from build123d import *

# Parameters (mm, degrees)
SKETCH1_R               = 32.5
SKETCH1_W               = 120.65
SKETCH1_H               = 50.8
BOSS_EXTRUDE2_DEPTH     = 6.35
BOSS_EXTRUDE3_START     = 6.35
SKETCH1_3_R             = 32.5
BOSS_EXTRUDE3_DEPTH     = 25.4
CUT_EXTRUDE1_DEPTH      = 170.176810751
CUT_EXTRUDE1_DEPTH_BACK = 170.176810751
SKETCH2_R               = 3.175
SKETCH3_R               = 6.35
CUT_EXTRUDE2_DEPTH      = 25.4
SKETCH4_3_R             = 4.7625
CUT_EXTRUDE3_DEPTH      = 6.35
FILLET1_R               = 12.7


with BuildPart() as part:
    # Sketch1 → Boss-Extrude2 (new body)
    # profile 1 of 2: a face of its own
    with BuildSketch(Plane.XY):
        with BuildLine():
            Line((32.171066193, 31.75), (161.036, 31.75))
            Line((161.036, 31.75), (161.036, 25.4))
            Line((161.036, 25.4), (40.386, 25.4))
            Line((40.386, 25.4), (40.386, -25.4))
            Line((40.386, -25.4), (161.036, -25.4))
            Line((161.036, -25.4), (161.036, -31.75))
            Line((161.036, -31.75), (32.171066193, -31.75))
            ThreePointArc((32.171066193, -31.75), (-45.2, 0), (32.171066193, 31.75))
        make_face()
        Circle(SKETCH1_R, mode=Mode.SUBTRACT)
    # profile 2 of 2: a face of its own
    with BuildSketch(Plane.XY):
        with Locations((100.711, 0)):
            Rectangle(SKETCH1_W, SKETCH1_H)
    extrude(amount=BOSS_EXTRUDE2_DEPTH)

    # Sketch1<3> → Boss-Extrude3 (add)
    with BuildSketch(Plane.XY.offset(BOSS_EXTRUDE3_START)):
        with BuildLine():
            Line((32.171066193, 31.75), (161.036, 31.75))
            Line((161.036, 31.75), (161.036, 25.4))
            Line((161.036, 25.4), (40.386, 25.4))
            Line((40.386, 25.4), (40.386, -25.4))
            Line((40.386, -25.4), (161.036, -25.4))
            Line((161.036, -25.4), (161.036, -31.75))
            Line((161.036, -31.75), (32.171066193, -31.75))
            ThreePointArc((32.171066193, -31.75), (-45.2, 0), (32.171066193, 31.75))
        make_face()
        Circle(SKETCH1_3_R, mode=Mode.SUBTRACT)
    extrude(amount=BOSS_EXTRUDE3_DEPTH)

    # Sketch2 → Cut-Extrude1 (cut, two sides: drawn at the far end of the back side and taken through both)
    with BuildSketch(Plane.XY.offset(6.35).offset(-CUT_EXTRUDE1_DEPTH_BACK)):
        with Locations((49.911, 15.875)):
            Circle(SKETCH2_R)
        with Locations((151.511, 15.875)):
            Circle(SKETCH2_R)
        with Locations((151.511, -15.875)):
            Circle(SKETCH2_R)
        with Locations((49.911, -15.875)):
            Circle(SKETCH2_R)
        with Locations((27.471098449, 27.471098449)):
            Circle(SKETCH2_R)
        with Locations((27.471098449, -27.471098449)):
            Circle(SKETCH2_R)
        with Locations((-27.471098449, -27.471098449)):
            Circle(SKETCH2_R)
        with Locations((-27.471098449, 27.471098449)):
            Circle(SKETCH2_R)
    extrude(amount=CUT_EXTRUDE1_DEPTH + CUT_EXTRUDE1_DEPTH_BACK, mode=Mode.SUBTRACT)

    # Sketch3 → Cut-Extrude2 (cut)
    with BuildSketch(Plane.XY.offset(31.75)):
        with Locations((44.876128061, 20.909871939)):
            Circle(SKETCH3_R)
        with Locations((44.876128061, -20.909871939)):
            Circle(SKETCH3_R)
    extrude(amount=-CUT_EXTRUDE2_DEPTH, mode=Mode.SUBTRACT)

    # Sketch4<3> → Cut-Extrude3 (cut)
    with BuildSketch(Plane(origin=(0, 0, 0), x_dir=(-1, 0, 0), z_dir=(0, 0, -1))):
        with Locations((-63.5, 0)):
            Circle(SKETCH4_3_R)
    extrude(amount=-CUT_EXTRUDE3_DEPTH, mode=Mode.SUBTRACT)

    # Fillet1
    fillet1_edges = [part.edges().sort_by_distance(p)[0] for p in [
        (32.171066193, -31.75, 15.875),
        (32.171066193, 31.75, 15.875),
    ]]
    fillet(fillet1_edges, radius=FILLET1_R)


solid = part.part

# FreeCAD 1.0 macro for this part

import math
import FreeCAD as App
import Part
import Sketcher

V = App.Vector
Q = App.Units.Quantity


def edges_at(feature, points):
    """Names of the edges that pass closest to the given points."""
    edges = feature.Shape.Edges
    near = lambda p: min(range(len(edges)), key=lambda i: edges[i].distToShape(Part.Vertex(*p))[0])
    return sorted({f"Edge{near(p) + 1}" for p in points})

doc = App.newDocument("Part")
params = doc.addObject("Spreadsheet::Sheet", "Params")
for row, (alias, value) in enumerate([
    ("sketch1_height", "2.5 in"),
    ("pad1_length", "0.25 in"),
    ("sketch2_height", "2 in"),
    ("sketch2_width", "4.75 in"),
    ("sketch2_height2", "0.25 in"),
    ("pad2_length", "1 in"),
    ("sketch3_diameter", "0.25 in"),
    ("sketch4_diameter", "0.5 in"),
    ("pocket2_length", "1 in"),
    ("sketch5_diameter", "0.375 in"),
    ("pocket3_length", "0.25 in"),
    ("fillet_radius", "0.5 in"),
], start=1):
    params.set(f"A{row}", alias)
    params.set(f"B{row}", "=" + value)
    params.setAlias(f"B{row}", alias)

body = doc.addObject("PartDesign::Body", "Body")

sketch1 = body.newObject("Sketcher::SketchObject", "Sketch")
sketch1.AttachmentSupport = (doc.getObject("XY_Plane"), [""])
sketch1.MapMode = "FlatFace"
sketch1.addGeometry([
    Part.LineSegment(V(161, 32, 0), V(32, 32, 0)),
    Part.ArcOfCircle(Part.Circle(V(0, 0, 0), V(0, 0, 1), 45), math.radians(45), math.radians(315)),
    Part.LineSegment(V(32, -32, 0), V(161, -32, 0)),
    Part.LineSegment(V(161, -32, 0), V(161, 32, 0)),
    Part.Circle(V(0, 0, 0), V(0, 0, 1), 32),
], False)
sketch1.addConstraint([
    Sketcher.Constraint("Coincident", 0, 2, 1, 1),
    Sketcher.Constraint("Coincident", 1, 2, 2, 1),
    Sketcher.Constraint("Coincident", 2, 2, 3, 1),
    Sketcher.Constraint("Coincident", 3, 2, 0, 1),
    Sketcher.Constraint("Horizontal", 0),
    Sketcher.Constraint("Horizontal", 2),
    Sketcher.Constraint("Vertical", 3),
    Sketcher.Constraint("Coincident", 1, 3, -1, 1),
    Sketcher.Constraint("Coincident", 4, 3, -1, 1),
    Sketcher.Constraint("Vertical", 0, 2, 1, 2),
    Sketcher.Constraint("DistanceY", 3, 1, 3, 2, Q("2.5 in")),
    Sketcher.Constraint("Diameter", 4, 65.0),
    Sketcher.Constraint("DistanceX", -1, 1, 2, 2, Q("6.34 in")),
    Sketcher.Constraint("Radius", 1, 45.2),
])
sketch1.setExpression("Constraints[10]", "Params.sketch1_height")
pad1 = body.newObject("PartDesign::Pad", "Pad")
pad1.Profile = sketch1
pad1.setExpression("Length", "Params.pad1_length")

sketch2 = body.newObject("Sketcher::SketchObject", "Sketch001")
sketch2.AttachmentSupport = (doc.getObject("XY_Plane"), [""])
sketch2.MapMode = "FlatFace"
sketch2.AttachmentOffset = App.Placement(V(0, 0, 0.25 * 25.4), App.Rotation())
sketch2.addGeometry([
    Part.LineSegment(V(161, 32, 0), V(32, 32, 0)),
    Part.ArcOfCircle(Part.Circle(V(0, 0, 0), V(0, 0, 1), 45), math.radians(45), math.radians(315)),
    Part.LineSegment(V(32, -32, 0), V(161, -32, 0)),
    Part.LineSegment(V(161, -32, 0), V(161, -25, 0)),
    Part.LineSegment(V(161, -25, 0), V(40, -25, 0)),
    Part.LineSegment(V(40, -25, 0), V(40, 25, 0)),
    Part.LineSegment(V(40, 25, 0), V(161, 25, 0)),
    Part.LineSegment(V(161, 25, 0), V(161, 32, 0)),
    Part.Circle(V(0, 0, 0), V(0, 0, 1), 32),
], False)
sketch2.addConstraint([
    Sketcher.Constraint("Coincident", 0, 2, 1, 1),
    Sketcher.Constraint("Coincident", 1, 2, 2, 1),
    Sketcher.Constraint("Coincident", 2, 2, 3, 1),
    Sketcher.Constraint("Coincident", 3, 2, 4, 1),
    Sketcher.Constraint("Coincident", 4, 2, 5, 1),
    Sketcher.Constraint("Coincident", 5, 2, 6, 1),
    Sketcher.Constraint("Coincident", 6, 2, 7, 1),
    Sketcher.Constraint("Coincident", 7, 2, 0, 1),
    Sketcher.Constraint("Horizontal", 0),
    Sketcher.Constraint("Horizontal", 2),
    Sketcher.Constraint("Vertical", 3),
    Sketcher.Constraint("Horizontal", 4),
    Sketcher.Constraint("Vertical", 5),
    Sketcher.Constraint("Horizontal", 6),
    Sketcher.Constraint("Vertical", 7),
    Sketcher.Constraint("Coincident", 1, 3, -1, 1),
    Sketcher.Constraint("Coincident", 8, 3, -1, 1),
    Sketcher.Constraint("Symmetric", 3, 2, 6, 2, -1),
    Sketcher.Constraint("Vertical", 0, 2, 1, 2),
    Sketcher.Constraint("DistanceY", 5, 1, 5, 2, Q("2 in")),
    Sketcher.Constraint("DistanceX", 4, 2, 4, 1, Q("4.75 in")),
    Sketcher.Constraint("DistanceY", 3, 1, 3, 2, Q("0.25 in")),
    Sketcher.Constraint("Diameter", 8, 65.0),
    Sketcher.Constraint("DistanceX", -1, 1, 2, 2, Q("6.34 in")),
    Sketcher.Constraint("Radius", 1, 45.2),
])
sketch2.setExpression("Constraints[19]", "Params.sketch2_height")
sketch2.setExpression("Constraints[20]", "Params.sketch2_width")
sketch2.setExpression("Constraints[21]", "Params.sketch2_height2")
pad2 = body.newObject("PartDesign::Pad", "Pad001")
pad2.Profile = sketch2
pad2.setExpression("Length", "Params.pad2_length")

sketch3 = body.newObject("Sketcher::SketchObject", "Sketch002")
sketch3.AttachmentSupport = (doc.getObject("XY_Plane"), [""])
sketch3.MapMode = "FlatFace"
sketch3.AttachmentOffset = App.Placement(V(0, 0, 0.25 * 25.4), App.Rotation())
sketch3.addGeometry([
    Part.Circle(V(49.9, 15.9, 0), V(0, 0, 1), 3.2),
    Part.Circle(V(151.5, 15.9, 0), V(0, 0, 1), 3.2),
    Part.Circle(V(151.5, -15.9, 0), V(0, 0, 1), 3.2),
    Part.Circle(V(49.9, -15.9, 0), V(0, 0, 1), 3.2),
    Part.Circle(V(27.5, 27.5, 0), V(0, 0, 1), 3.2),
    Part.Circle(V(27.5, -27.5, 0), V(0, 0, 1), 3.2),
    Part.Circle(V(-27.5, -27.5, 0), V(0, 0, 1), 3.2),
    Part.Circle(V(-27.5, 27.5, 0), V(0, 0, 1), 3.2),
], False)
sketch3.addConstraint([
    Sketcher.Constraint("Equal", 0, 1),
    Sketcher.Constraint("Equal", 1, 2),
    Sketcher.Constraint("Equal", 2, 3),
    Sketcher.Constraint("Equal", 3, 4),
    Sketcher.Constraint("Equal", 4, 5),
    Sketcher.Constraint("Equal", 5, 6),
    Sketcher.Constraint("Equal", 6, 7),
    Sketcher.Constraint("Symmetric", 4, 3, 6, 3, -1, 1),
    Sketcher.Constraint("Symmetric", 5, 3, 7, 3, -1, 1),
    Sketcher.Constraint("Symmetric", 5, 3, 6, 3, -2),
    Sketcher.Constraint("Symmetric", 1, 3, 2, 3, -1),
    Sketcher.Constraint("Symmetric", 0, 3, 3, 3, -1),
    Sketcher.Constraint("Horizontal", 0, 3, 1, 3),
    Sketcher.Constraint("Diameter", 0, Q("0.25 in")),
    Sketcher.Constraint("DistanceX", 0, 3, 1, 3, Q("4 in")),
    Sketcher.Constraint("DistanceY", 2, 3, 1, 3, Q("1.25 in")),
    Sketcher.Constraint("DistanceX", -1, 1, 0, 3, Q("1.965 in")),
    Sketcher.Constraint("DistanceX", -1, 1, 4, 3, 27.471098),
    Sketcher.Constraint("DistanceY", -1, 1, 4, 3, 27.471098),
])
sketch3.setExpression("Constraints[13]", "Params.sketch3_diameter")
pocket1 = body.newObject("PartDesign::Pocket", "Pocket")
pocket1.Profile = sketch3
pocket1.Type = "ThroughAll"
pocket1.Midplane = True

sketch4 = body.newObject("Sketcher::SketchObject", "Sketch003")
sketch4.AttachmentSupport = (doc.getObject("XY_Plane"), [""])
sketch4.MapMode = "FlatFace"
sketch4.AttachmentOffset = App.Placement(V(0, 0, 1.25 * 25.4), App.Rotation())
sketch4.addGeometry([
    Part.Circle(V(45, 21, 0), V(0, 0, 1), 6),
    Part.Circle(V(45, -21, 0), V(0, 0, 1), 6),
], False)
sketch4.addConstraint([
    Sketcher.Constraint("Equal", 0, 1),
    Sketcher.Constraint("Symmetric", 0, 3, 1, 3, -1),
    Sketcher.Constraint("Diameter", 0, Q("0.5 in")),
    Sketcher.Constraint("DistanceX", -1, 1, 0, 3, 44.876128),
    Sketcher.Constraint("DistanceY", -1, 1, 0, 3, 20.909872),
])
sketch4.setExpression("Constraints[2]", "Params.sketch4_diameter")
pocket2 = body.newObject("PartDesign::Pocket", "Pocket001")
pocket2.Profile = sketch4
pocket2.setExpression("Length", "Params.pocket2_length")

sketch5 = body.newObject("Sketcher::SketchObject", "Sketch004")
sketch5.AttachmentSupport = (doc.getObject("XY_Plane"), [""])
sketch5.MapMode = "FlatFace"
sketch5.addGeometry(Part.Circle(V(63.5, 0, 0), V(0, 0, 1), 4.8), False)
sketch5.addConstraint([
    Sketcher.Constraint("PointOnObject", 0, 3, -1),
    Sketcher.Constraint("Diameter", 0, Q("0.375 in")),
    Sketcher.Constraint("DistanceX", -1, 1, 0, 3, Q("2.5 in")),
])
sketch5.setExpression("Constraints[1]", "Params.sketch5_diameter")
pocket3 = body.newObject("PartDesign::Pocket", "Pocket002")
pocket3.Profile = sketch5
pocket3.setExpression("Length", "Params.pocket3_length")
pocket3.Reversed = True
doc.recompute()

fillet = body.newObject("PartDesign::Fillet", "Fillet")
fillet.Base = (pocket3, edges_at(pocket3, [(32.171, -31.75, 15.875), (32.171, 31.75, 15.875)]))
fillet.setExpression("Radius", "Params.fillet_radius")

doc.recompute()
